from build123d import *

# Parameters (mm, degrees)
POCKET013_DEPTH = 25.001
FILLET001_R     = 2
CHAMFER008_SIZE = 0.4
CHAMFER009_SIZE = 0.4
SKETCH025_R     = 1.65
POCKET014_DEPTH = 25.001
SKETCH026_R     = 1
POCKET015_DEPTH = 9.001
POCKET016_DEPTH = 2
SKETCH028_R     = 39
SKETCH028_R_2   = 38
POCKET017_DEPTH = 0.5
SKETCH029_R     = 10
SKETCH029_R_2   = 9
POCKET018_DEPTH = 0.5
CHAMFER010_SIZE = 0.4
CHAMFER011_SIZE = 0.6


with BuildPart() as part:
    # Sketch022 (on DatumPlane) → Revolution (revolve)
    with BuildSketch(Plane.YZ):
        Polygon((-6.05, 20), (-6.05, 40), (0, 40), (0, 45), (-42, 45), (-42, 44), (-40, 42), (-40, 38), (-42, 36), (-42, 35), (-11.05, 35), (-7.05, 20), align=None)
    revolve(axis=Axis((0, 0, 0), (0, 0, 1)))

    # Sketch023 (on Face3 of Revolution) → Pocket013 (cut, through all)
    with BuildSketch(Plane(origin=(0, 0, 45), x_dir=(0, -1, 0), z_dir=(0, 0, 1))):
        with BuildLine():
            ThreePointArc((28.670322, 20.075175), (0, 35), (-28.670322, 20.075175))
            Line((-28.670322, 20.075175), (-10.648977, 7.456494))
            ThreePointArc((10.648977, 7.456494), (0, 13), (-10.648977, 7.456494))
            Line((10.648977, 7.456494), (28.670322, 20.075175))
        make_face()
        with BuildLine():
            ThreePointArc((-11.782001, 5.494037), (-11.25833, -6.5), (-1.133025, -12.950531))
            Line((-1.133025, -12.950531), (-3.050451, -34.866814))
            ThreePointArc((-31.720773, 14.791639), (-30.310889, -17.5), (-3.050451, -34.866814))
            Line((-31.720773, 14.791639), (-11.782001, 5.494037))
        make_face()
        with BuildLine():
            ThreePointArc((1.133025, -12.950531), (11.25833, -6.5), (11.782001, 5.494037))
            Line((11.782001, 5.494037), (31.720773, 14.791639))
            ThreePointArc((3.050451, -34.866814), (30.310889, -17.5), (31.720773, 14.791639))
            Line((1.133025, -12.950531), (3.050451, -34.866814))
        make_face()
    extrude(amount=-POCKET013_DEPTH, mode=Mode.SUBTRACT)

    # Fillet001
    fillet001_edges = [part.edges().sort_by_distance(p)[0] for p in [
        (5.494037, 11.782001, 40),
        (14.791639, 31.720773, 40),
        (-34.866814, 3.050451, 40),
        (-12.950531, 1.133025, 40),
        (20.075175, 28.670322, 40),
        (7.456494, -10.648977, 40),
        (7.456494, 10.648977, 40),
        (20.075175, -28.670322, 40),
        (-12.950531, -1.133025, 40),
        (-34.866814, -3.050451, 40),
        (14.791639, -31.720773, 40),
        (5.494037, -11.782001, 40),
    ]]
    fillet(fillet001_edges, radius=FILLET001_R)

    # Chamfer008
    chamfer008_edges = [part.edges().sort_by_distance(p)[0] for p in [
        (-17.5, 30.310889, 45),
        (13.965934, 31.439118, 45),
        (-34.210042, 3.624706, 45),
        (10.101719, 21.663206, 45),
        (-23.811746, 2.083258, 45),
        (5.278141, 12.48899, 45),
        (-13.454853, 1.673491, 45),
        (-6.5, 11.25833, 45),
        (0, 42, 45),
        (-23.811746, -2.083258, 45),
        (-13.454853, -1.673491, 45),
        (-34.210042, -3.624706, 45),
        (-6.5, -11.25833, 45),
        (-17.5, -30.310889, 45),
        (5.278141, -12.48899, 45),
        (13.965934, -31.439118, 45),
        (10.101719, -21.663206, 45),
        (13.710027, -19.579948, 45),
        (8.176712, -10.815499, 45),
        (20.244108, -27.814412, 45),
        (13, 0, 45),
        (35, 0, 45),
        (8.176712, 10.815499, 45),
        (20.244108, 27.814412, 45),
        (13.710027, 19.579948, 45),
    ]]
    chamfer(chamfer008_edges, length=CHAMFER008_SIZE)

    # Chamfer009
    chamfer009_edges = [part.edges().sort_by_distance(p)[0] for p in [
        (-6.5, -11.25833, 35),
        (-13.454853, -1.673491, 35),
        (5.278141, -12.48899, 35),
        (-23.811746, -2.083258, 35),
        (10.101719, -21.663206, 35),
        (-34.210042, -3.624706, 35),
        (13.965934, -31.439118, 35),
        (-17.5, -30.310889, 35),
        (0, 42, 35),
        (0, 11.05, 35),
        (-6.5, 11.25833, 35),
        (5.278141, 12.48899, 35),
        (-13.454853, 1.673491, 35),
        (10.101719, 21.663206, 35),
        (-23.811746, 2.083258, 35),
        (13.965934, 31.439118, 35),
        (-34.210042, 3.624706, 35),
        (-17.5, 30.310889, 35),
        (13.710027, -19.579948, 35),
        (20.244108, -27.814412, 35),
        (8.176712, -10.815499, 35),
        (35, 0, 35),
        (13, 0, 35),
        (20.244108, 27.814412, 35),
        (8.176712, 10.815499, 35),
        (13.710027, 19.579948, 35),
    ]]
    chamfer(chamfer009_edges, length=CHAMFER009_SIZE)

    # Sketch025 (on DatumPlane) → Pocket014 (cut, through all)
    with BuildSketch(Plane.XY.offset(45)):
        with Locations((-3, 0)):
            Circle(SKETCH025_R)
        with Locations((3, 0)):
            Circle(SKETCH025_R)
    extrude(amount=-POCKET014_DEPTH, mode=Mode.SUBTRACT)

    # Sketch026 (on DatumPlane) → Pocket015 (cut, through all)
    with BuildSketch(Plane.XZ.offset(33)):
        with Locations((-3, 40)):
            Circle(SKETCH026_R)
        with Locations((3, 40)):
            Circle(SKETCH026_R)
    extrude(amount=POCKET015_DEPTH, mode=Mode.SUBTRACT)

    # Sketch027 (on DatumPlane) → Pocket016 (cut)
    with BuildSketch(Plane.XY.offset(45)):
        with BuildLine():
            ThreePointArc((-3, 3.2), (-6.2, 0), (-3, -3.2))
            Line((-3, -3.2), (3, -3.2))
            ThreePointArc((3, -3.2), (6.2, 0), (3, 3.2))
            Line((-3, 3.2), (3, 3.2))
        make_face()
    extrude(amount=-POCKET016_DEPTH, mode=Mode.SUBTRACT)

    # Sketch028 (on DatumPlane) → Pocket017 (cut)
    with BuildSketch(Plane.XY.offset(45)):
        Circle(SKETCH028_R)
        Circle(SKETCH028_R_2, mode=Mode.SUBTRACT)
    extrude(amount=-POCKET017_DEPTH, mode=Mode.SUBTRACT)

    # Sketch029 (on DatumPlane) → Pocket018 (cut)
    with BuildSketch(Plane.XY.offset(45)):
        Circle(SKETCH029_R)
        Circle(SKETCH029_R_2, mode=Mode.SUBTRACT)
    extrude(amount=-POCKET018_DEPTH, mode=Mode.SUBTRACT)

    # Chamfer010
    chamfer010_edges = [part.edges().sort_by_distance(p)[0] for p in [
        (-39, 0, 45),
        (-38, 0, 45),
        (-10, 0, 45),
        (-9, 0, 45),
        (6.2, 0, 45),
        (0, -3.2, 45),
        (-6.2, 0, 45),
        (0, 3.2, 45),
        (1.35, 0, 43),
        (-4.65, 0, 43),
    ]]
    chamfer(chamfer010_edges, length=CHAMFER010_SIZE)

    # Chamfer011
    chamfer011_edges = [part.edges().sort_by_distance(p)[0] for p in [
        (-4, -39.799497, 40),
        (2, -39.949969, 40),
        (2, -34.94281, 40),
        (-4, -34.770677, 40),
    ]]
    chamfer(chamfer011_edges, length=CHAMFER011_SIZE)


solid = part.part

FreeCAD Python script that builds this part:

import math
import FreeCAD as App
import Part
import Sketcher
Q = App.Units.Quantity


def edges_at(feature, points):
    """Names of the edges that pass closest to the given points."""
    edges = feature.Shape.Edges
    near = lambda p: min(range(len(edges)), key=lambda i: edges[i].distToShape(Part.Vertex(*p))[0])
    return sorted({f"Edge{near(p) + 1}" for p in points})


def add_polygon(sketch, points):
    """Adds a closed chain of lines whose ends are joined by coincident constraints."""
    first, n = sketch.GeometryCount, len(points)
    for a, b in zip(points, points[1:] + points[:1]):
        sketch.addGeometry(Part.LineSegment(App.Vector(*a, 0), App.Vector(*b, 0)), False)
    for i in range(n):
        sketch.addConstraint(Sketcher.Constraint("Coincident", first + i, 2, first + (i + 1) % n, 1))

doc = App.newDocument("Part")
params = doc.addObject("Spreadsheet::Sheet", "Params")
for row, (alias, value) in enumerate([
    ("sketch1_width", "42 mm"),
    ("sketch1_width2", "1 mm"),
    ("sketch1_height", "20 mm"),
    ("sketch1_height2", "5 mm"),
    ("sketch1_height3", "4 mm"),
    ("revolution_angle", "360 deg"),
    ("sketch2_radius", "35 mm"),
    ("sketch2_radius2", "13.000001 mm"),
    ("fillet_radius", "2 mm"),
    ("chamfer_size", "0.4 mm"),
    ("chamfer2_size", "0.4 mm"),
    ("sketch3_diameter", "3.3 mm"),
    ("sketch4_diameter", "2 mm"),
    ("sketch5_radius", "3.2 mm"),
    ("sketch5_width", "6 mm"),
    ("pocket4_length", "2 mm"),
    ("sketch6_diameter", "78 mm"),
    ("sketch6_diameter2", "76 mm"),
    ("pocket5_length", "0.5 mm"),
    ("sketch7_diameter", "20 mm"),
    ("sketch7_diameter2", "18 mm"),
    ("pocket6_length", "0.5 mm"),
    ("chamfer3_size", "0.4 mm"),
    ("chamfer4_size", "0.6 mm"),
], start=1):
    params.set(f"A{row}", alias)
    params.set(f"B{row}", "=" + value)
    params.setAlias(f"B{row}", alias)

body = doc.addObject("PartDesign::Body", "Body")

# Sketch on YZ plane
sketch1 = body.newObject("Sketcher::SketchObject", "Sketch")
sketch1.AttachmentSupport = (doc.getObject("YZ_Plane"), [""])
sketch1.MapMode = "FlatFace"
add_polygon(sketch1, [(-6, 20), (-6, 40), (0, 40), (0, 45), (-42, 45), (-42, 44), (-40, 42), (-40, 38), (-42, 36), (-42, 35), (-11.1, 35), (-7, 20)])  # lines 0-11
sketch1.addConstraint([
    Sketcher.Constraint("Vertical", 0),
    Sketcher.Constraint("Horizontal", 1),
    Sketcher.Constraint("Vertical", 2),
    Sketcher.Constraint("Horizontal", 3),
    Sketcher.Constraint("Vertical", 4),
    Sketcher.Constraint("Vertical", 6),
    Sketcher.Constraint("Vertical", 8),
    Sketcher.Constraint("Horizontal", 9),
    Sketcher.Constraint("Horizontal", 11),
    Sketcher.Constraint("PointOnObject", 1, 2, -2),
    Sketcher.Constraint("Perpendicular", 5, 7),
    Sketcher.Constraint("Vertical", 4, 2, 7, 2),
    Sketcher.Constraint("Equal", 11, 4),
    Sketcher.Constraint("Equal", 4, 8),
    Sketcher.Constraint("Equal", 5, 7),
    Sketcher.Constraint("DistanceX", 3, 2, 3, 1, 42.0),
    Sketcher.Constraint("DistanceX", 11, 1, 11, 2, 1.0),
    Sketcher.Constraint("DistanceY", 0, 1, 0, 2, 20.0),
    Sketcher.Constraint("DistanceY", 2, 1, 2, 2, 5.0),
    Sketcher.Constraint("DistanceY", 6, 2, 6, 1, 4.0),
    Sketcher.Constraint("DistanceY", -1, 1, 0, 2, 40.0),
    Sketcher.Constraint("DistanceX", 5, 2, -1, 1, 40.0),
    Sketcher.Constraint("DistanceX", 9, 2, 0, 2, 5.0),
    Sketcher.Constraint("DistanceX", 1, 1, 1, 2, 6.05),
])
sketch1.setExpression("Constraints[27]", "Params.sketch1_width")
sketch1.setExpression("Constraints[28]", "Params.sketch1_width2")
sketch1.setExpression("Constraints[29]", "Params.sketch1_height")
sketch1.setExpression("Constraints[30]", "Params.sketch1_height2")
sketch1.setExpression("Constraints[31]", "Params.sketch1_height3")
revolution = body.newObject("PartDesign::Revolution", "Revolution")
revolution.Profile = sketch1
revolution.ReferenceAxis = (sketch1, ["V_Axis"])
revolution.setExpression("Angle", "Params.revolution_angle")

# Sketch on XY plane
sketch2 = body.newObject("Sketcher::SketchObject", "Sketch001")
sketch2.AttachmentSupport = (doc.getObject("XY_Plane"), [""])
sketch2.MapMode = "FlatFace"
sketch2.AttachmentOffset = App.Placement(App.Vector(0, 0, 45), App.Rotation())
sketch2.addGeometry([
    Part.ArcOfCircle(Part.Circle(App.Vector(0, 0, 0), App.Vector(0, 0, 1), 35), math.radians(-55), math.radians(55)),  # 0
    Part.LineSegment(App.Vector(20, 29, 0), App.Vector(7, 11, 0)),  # 1
    Part.ArcOfCircle(Part.Circle(App.Vector(0, 0, 0), App.Vector(0, 0, 1), 13), math.radians(-55), math.radians(55)),  # 2
    Part.LineSegment(App.Vector(7, -11, 0), App.Vector(20, -29, 0)),  # 3
    Part.ArcOfCircle(Part.Circle(App.Vector(0, 0, 0), App.Vector(0, 0, 1), 13), math.radians(65), math.radians(175)),  # 4
    Part.LineSegment(App.Vector(5, 12, 0), App.Vector(15, 32, 0)),  # 5
    Part.ArcOfCircle(Part.Circle(App.Vector(0, 0, 0), App.Vector(0, 0, 1), 35), math.radians(65), math.radians(175)),  # 6
    Part.LineSegment(App.Vector(-35, 3, 0), App.Vector(-13, 1, 0)),  # 7
    Part.ArcOfCircle(Part.Circle(App.Vector(0, 0, 0), App.Vector(0, 0, 1), 13), math.radians(-175), math.radians(-65)),  # 8
    Part.LineSegment(App.Vector(-13, -1, 0), App.Vector(-35, -3, 0)),  # 9
    Part.ArcOfCircle(Part.Circle(App.Vector(0, 0, 0), App.Vector(0, 0, 1), 35), math.radians(-175), math.radians(-65)),  # 10
    Part.LineSegment(App.Vector(15, -32, 0), App.Vector(5, -12, 0)),  # 11
], False)
sketch2.addConstraint([
    Sketcher.Constraint("Coincident", 0, 2, 1, 1),
    Sketcher.Constraint("Coincident", 1, 2, 2, 2),
    Sketcher.Constraint("Coincident", 2, 1, 3, 1),
    Sketcher.Constraint("Coincident", 3, 2, 0, 1),
    Sketcher.Constraint("Coincident", 4, 1, 5, 1),
    Sketcher.Constraint("Coincident", 5, 2, 6, 1),
    Sketcher.Constraint("Coincident", 6, 2, 7, 1),
    Sketcher.Constraint("Coincident", 7, 2, 4, 2),
    Sketcher.Constraint("Coincident", 8, 1, 9, 1),
    Sketcher.Constraint("Coincident", 9, 2, 10, 1),
    Sketcher.Constraint("Coincident", 10, 2, 11, 1),
    Sketcher.Constraint("Coincident", 11, 2, 8, 2),
    Sketcher.Constraint("Coincident", 0, 3, -1, 1),
    Sketcher.Constraint("Coincident", 2, 3, -1, 1),
    Sketcher.Constraint("Coincident", 4, 3, -1, 1),
    Sketcher.Constraint("Coincident", 6, 3, -1, 1),
    Sketcher.Constraint("Coincident", 8, 3, -1, 1),
    Sketcher.Constraint("Coincident", 10, 3, -1, 1),
    Sketcher.Constraint("Equal", 2, 4),
    Sketcher.Constraint("Equal", 0, 6),
    Sketcher.Constraint("Equal", 4, 8),
    Sketcher.Constraint("Equal", 6, 10),
    Sketcher.Constraint("Vertical", 1, 2, 2, 1),
    Sketcher.Constraint("Vertical", 0, 2, 3, 2),
    Sketcher.Constraint("Vertical", 7, 2, 8, 1),
    Sketcher.Constraint("Vertical", 6, 2, 9, 2),
    Sketcher.Constraint("Vertical", 5, 2, 10, 2),
    Sketcher.Constraint("Vertical", 4, 1, 11, 2),
    Sketcher.Constraint("Radius", 0, 35.0),
    Sketcher.Constraint("Radius", 2, 13.000001),
    Sketcher.Constraint("Angle", 1, Q("-124.999999 deg")),
    Sketcher.Constraint("Angle", 5, Q("65 deg")),
    Sketcher.Constraint("Angle", 7, Q("-4.999999 deg")),
    Sketcher.Constraint("DistanceY", -1, 1, 4, 1, 11.782001),
    Sketcher.Constraint("DistanceY", 3, 2, -1, 1, 28.670322),
    Sketcher.Constraint("DistanceY", -1, 1, 6, 2, 3.050451),
])
sketch2.setExpression("Constraints[28]", "Params.sketch2_radius")
sketch2.setExpression("Constraints[29]", "Params.sketch2_radius2")
pocket1 = body.newObject("PartDesign::Pocket", "Pocket")
pocket1.Profile = sketch2
pocket1.Type = "ThroughAll"
doc.recompute()

fillet = body.newObject("PartDesign::Fillet", "Fillet")
fillet.Base = (pocket1, edges_at(pocket1, [
    (5.494, 11.782, 40),
    (14.792, 31.721, 40),
    (-34.867, 3.05, 40),
    (-12.951, 1.133, 40),
    (20.075, 28.67, 40),
    (7.456, -10.649, 40),
    (7.456, 10.649, 40),
    (20.075, -28.67, 40),
    (-12.951, -1.133, 40),
    (-34.867, -3.05, 40),
    (14.792, -31.721, 40),
    (5.494, -11.782, 40),
]))
fillet.setExpression("Radius", "Params.fillet_radius")
doc.recompute()

chamfer = body.newObject("PartDesign::Chamfer", "Chamfer")
chamfer.Base = (fillet, edges_at(fillet, [
    (-17.5, 30.311, 45),
    (13.966, 31.439, 45),
    (-34.21, 3.625, 45),
    (10.102, 21.663, 45),
    (-23.812, 2.083, 45),
    (5.278, 12.489, 45),
    (-13.455, 1.673, 45),
    (-6.5, 11.258, 45),
    (0, 42, 45),
    (-23.812, -2.083, 45),
    (-13.455, -1.673, 45),
    (-34.21, -3.625, 45),
    (-6.5, -11.258, 45),
    (-17.5, -30.311, 45),
    (5.278, -12.489, 45),
    (13.966, -31.439, 45),
    (10.102, -21.663, 45),
    (13.71, -19.58, 45),
    (8.177, -10.815, 45),
    (20.244, -27.814, 45),
    (13, 0, 45),
    (35, 0, 45),
    (8.177, 10.815, 45),
    (20.244, 27.814, 45),
    (13.71, 19.58, 45),
]))
chamfer.setExpression("Size", "Params.chamfer_size")
doc.recompute()

chamfer2 = body.newObject("PartDesign::Chamfer", "Chamfer001")
chamfer2.Base = (chamfer, edges_at(chamfer, [
    (-6.5, -11.258, 35),
    (-13.455, -1.673, 35),
    (5.278, -12.489, 35),
    (-23.812, -2.083, 35),
    (10.102, -21.663, 35),
    (-34.21, -3.625, 35),
    (13.966, -31.439, 35),
    (-17.5, -30.311, 35),
    (0, 42, 35),
    (0, 11.05, 35),
    (-6.5, 11.258, 35),
    (5.278, 12.489, 35),
    (-13.455, 1.673, 35),
    (10.102, 21.663, 35),
    (-23.812, 2.083, 35),
    (13.966, 31.439, 35),
    (-34.21, 3.625, 35),
    (-17.5, 30.311, 35),
    (13.71, -19.58, 35),
    (20.244, -27.814, 35),
    (8.177, -10.815, 35),
    (35, 0, 35),
    (13, 0, 35),
    (20.244, 27.814, 35),
    (8.177, 10.815, 35),
    (13.71, 19.58, 35),
]))
chamfer2.setExpression("Size", "Params.chamfer2_size")

# Sketch on XY plane
sketch3 = body.newObject("Sketcher::SketchObject", "Sketch002")
sketch3.AttachmentSupport = (doc.getObject("XY_Plane"), [""])
sketch3.MapMode = "FlatFace"
sketch3.AttachmentOffset = App.Placement(App.Vector(0, 0, 45), App.Rotation())
sketch3.addGeometry([
    Part.Circle(App.Vector(-3, 0, 0), App.Vector(0, 0, 1), 1.6),
    Part.Circle(App.Vector(3, 0, 0), App.Vector(0, 0, 1), 1.6),
], False)
sketch3.addConstraint([
    Sketcher.Constraint("Equal", 0, 1),
    Sketcher.Constraint("Symmetric", 0, 3, 1, 3, -1, 1),
    Sketcher.Constraint("PointOnObject", 0, 3, -1),
    Sketcher.Constraint("Diameter", 0, 3.3),
    Sketcher.Constraint("DistanceX", 0, 3, -1, 1, 3.0),
])
sketch3.setExpression("Constraints[3]", "Params.sketch3_diameter")
pocket2 = body.newObject("PartDesign::Pocket", "Pocket001")
pocket2.Profile = sketch3
pocket2.Type = "ThroughAll"

# Sketch on XZ plane
sketch4 = body.newObject("Sketcher::SketchObject", "Sketch003")
sketch4.AttachmentSupport = (doc.getObject("XZ_Plane"), [""])
sketch4.MapMode = "FlatFace"
sketch4.AttachmentOffset = App.Placement(App.Vector(0, 0, 33), App.Rotation())
sketch4.addGeometry([
    Part.Circle(App.Vector(-3, 40, 0), App.Vector(0, 0, 1), 1),
    Part.Circle(App.Vector(3, 40, 0), App.Vector(0, 0, 1), 1),
], False)
sketch4.addConstraint([
    Sketcher.Constraint("Equal", 0, 1),
    Sketcher.Constraint("Symmetric", 0, 3, 1, 3, -2),
    Sketcher.Constraint("Diameter", 0, 2.0),
    Sketcher.Constraint("DistanceX", 0, 3, -1, 1, 3.0),
    Sketcher.Constraint("DistanceY", -1, 1, 0, 3, 40.0),
])
sketch4.setExpression("Constraints[2]", "Params.sketch4_diameter")
pocket3 = body.newObject("PartDesign::Pocket", "Pocket002")
pocket3.Profile = sketch4
pocket3.Type = "ThroughAll"
pocket3.Reversed = True

# Sketch on XY plane
sketch5 = body.newObject("Sketcher::SketchObject", "Sketch004")
sketch5.AttachmentSupport = (doc.getObject("XY_Plane"), [""])
sketch5.MapMode = "FlatFace"
sketch5.AttachmentOffset = App.Placement(App.Vector(0, 0, 45), App.Rotation())
sketch5.addGeometry([
    Part.ArcOfCircle(Part.Circle(App.Vector(-3, 0, 0), App.Vector(0, 0, 1), 3.2), math.radians(90), math.radians(270)),
    Part.LineSegment(App.Vector(-3, -3.2, 0), App.Vector(3, -3.2, 0)),
    Part.ArcOfCircle(Part.Circle(App.Vector(3, 0, 0), App.Vector(0, 0, 1), 3.2), math.radians(-90), math.radians(90)),
    Part.LineSegment(App.Vector(3, 3.2, 0), App.Vector(-3, 3.2, 0)),
], False)
sketch5.addConstraint([
    Sketcher.Constraint("Tangent", 0, 2, 1, 1),
    Sketcher.Constraint("Tangent", 1, 2, 2, 1),
    Sketcher.Constraint("Tangent", 2, 2, 3, 1),
    Sketcher.Constraint("Tangent", 3, 2, 0, 1),
    Sketcher.Constraint("Horizontal", 1),
    Sketcher.Constraint("Horizontal", 3),
    Sketcher.Constraint("Symmetric", 0, 3, 2, 3, -1, 1),
    Sketcher.Constraint("Radius", 0, 3.2),
    Sketcher.Constraint("DistanceX", 1, 1, 1, 2, 6.0),
])
sketch5.setExpression("Constraints[7]", "Params.sketch5_radius")
sketch5.setExpression("Constraints[8]", "Params.sketch5_width")
pocket4 = body.newObject("PartDesign::Pocket", "Pocket003")
pocket4.Profile = sketch5
pocket4.setExpression("Length", "Params.pocket4_length")

# Sketch on XY plane
sketch6 = body.newObject("Sketcher::SketchObject", "Sketch005")
sketch6.AttachmentSupport = (doc.getObject("XY_Plane"), [""])
sketch6.MapMode = "FlatFace"
sketch6.AttachmentOffset = App.Placement(App.Vector(0, 0, 45), App.Rotation())
sketch6.addGeometry([
    Part.Circle(App.Vector(0, 0, 0), App.Vector(0, 0, 1), 39),
    Part.Circle(App.Vector(0, 0, 0), App.Vector(0, 0, 1), 38),
], False)
sketch6.addConstraint([
    Sketcher.Constraint("Coincident", 0, 3, -1, 1),
    Sketcher.Constraint("Coincident", 1, 3, -1, 1),
    Sketcher.Constraint("Diameter", 0, 78.0),
    Sketcher.Constraint("Diameter", 1, 76.0),
])
sketch6.setExpression("Constraints[2]", "Params.sketch6_diameter")
sketch6.setExpression("Constraints[3]", "Params.sketch6_diameter2")
pocket5 = body.newObject("PartDesign::Pocket", "Pocket004")
pocket5.Profile = sketch6
pocket5.setExpression("Length", "Params.pocket5_length")

# Sketch on XY plane
sketch7 = body.newObject("Sketcher::SketchObject", "Sketch006")
sketch7.AttachmentSupport = (doc.getObject("XY_Plane"), [""])
sketch7.MapMode = "FlatFace"
sketch7.AttachmentOffset = App.Placement(App.Vector(0, 0, 45), App.Rotation())
sketch7.addGeometry([
    Part.Circle(App.Vector(0, 0, 0), App.Vector(0, 0, 1), 10),
    Part.Circle(App.Vector(0, 0, 0), App.Vector(0, 0, 1), 9),
], False)
sketch7.addConstraint([
    Sketcher.Constraint("Coincident", 0, 3, -1, 1),
    Sketcher.Constraint("Coincident", 1, 3, -1, 1),
    Sketcher.Constraint("Diameter", 0, 20.0),
    Sketcher.Constraint("Diameter", 1, 18.0),
])
sketch7.setExpression("Constraints[2]", "Params.sketch7_diameter")
sketch7.setExpression("Constraints[3]", "Params.sketch7_diameter2")
pocket6 = body.newObject("PartDesign::Pocket", "Pocket005")
pocket6.Profile = sketch7
pocket6.setExpression("Length", "Params.pocket6_length")
doc.recompute()

chamfer3 = body.newObject("PartDesign::Chamfer", "Chamfer002")
chamfer3.Base = (pocket6, edges_at(pocket6, [
    (-39, 0, 45),
    (-38, 0, 45),
    (-10, 0, 45),
    (-9, 0, 45),
    (6.2, 0, 45),
    (0, -3.2, 45),
    (-6.2, 0, 45),
    (0, 3.2, 45),
    (1.35, 0, 43),
    (-4.65, 0, 43),
]))
chamfer3.setExpression("Size", "Params.chamfer3_size")
doc.recompute()

chamfer4 = body.newObject("PartDesign::Chamfer", "Chamfer003")
chamfer4.Base = (chamfer3, edges_at(chamfer3, [
    (-4, -39.799, 40),
    (2, -39.95, 40),
    (2, -34.943, 40),
    (-4, -34.771, 40),
]))
chamfer4.setExpression("Size", "Params.chamfer4_size")

doc.recompute()
